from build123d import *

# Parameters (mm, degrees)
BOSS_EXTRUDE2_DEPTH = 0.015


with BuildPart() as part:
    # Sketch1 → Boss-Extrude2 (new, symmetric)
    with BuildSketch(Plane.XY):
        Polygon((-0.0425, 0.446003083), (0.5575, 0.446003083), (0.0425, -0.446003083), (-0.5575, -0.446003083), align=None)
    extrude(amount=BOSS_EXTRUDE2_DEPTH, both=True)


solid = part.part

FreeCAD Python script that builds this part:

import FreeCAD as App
import Part
import Sketcher

V = App.Vector
Q = App.Units.Quantity

doc = App.newDocument("Part")
body = doc.addObject("PartDesign::Body", "Body")

# Sketch on XY plane
sketch1 = body.newObject("Sketcher::SketchObject", "Sketch")
sketch1.AttachmentSupport = (doc.getObject("XY_Plane"), [""])
sketch1.MapMode = "FlatFace"
sketch1.addGeometry([
    Part.LineSegment(V(0.6, 0.4, 0), V(0, 0.4, 0)),
    Part.LineSegment(V(0, 0.4, 0), V(-0.6, -0.4, 0)),
    Part.LineSegment(V(-0.6, -0.4, 0), V(0, -0.4, 0)),
    Part.LineSegment(V(0, -0.4, 0), V(0.6, 0.4, 0)),
], False)
sketch1.addConstraint([
    Sketcher.Constraint("Coincident", 0, 2, 1, 1),
    Sketcher.Constraint("Coincident", 1, 2, 2, 1),
    Sketcher.Constraint("Coincident", 2, 2, 3, 1),
    Sketcher.Constraint("Coincident", 3, 2, 0, 1),
    Sketcher.Constraint("Horizontal", 0),
    Sketcher.Constraint("Horizontal", 2),
    Sketcher.Constraint("Symmetric", 0, 2, 2, 2, -1, 1),
    Sketcher.Constraint("Parallel", 1, 3),
    Sketcher.Constraint("Angle", 1, Q("-120 deg")),
    Sketcher.Constraint("DistanceX", 0, 2, 0, 1, 0.6),
    Sketcher.Constraint("Distance", 1, 1.03),
])
pad1 = body.newObject("PartDesign::Pad", "Pad")
pad1.Profile = sketch1
pad1.Length = 0.03
pad1.Midplane = True

doc.recompute()
